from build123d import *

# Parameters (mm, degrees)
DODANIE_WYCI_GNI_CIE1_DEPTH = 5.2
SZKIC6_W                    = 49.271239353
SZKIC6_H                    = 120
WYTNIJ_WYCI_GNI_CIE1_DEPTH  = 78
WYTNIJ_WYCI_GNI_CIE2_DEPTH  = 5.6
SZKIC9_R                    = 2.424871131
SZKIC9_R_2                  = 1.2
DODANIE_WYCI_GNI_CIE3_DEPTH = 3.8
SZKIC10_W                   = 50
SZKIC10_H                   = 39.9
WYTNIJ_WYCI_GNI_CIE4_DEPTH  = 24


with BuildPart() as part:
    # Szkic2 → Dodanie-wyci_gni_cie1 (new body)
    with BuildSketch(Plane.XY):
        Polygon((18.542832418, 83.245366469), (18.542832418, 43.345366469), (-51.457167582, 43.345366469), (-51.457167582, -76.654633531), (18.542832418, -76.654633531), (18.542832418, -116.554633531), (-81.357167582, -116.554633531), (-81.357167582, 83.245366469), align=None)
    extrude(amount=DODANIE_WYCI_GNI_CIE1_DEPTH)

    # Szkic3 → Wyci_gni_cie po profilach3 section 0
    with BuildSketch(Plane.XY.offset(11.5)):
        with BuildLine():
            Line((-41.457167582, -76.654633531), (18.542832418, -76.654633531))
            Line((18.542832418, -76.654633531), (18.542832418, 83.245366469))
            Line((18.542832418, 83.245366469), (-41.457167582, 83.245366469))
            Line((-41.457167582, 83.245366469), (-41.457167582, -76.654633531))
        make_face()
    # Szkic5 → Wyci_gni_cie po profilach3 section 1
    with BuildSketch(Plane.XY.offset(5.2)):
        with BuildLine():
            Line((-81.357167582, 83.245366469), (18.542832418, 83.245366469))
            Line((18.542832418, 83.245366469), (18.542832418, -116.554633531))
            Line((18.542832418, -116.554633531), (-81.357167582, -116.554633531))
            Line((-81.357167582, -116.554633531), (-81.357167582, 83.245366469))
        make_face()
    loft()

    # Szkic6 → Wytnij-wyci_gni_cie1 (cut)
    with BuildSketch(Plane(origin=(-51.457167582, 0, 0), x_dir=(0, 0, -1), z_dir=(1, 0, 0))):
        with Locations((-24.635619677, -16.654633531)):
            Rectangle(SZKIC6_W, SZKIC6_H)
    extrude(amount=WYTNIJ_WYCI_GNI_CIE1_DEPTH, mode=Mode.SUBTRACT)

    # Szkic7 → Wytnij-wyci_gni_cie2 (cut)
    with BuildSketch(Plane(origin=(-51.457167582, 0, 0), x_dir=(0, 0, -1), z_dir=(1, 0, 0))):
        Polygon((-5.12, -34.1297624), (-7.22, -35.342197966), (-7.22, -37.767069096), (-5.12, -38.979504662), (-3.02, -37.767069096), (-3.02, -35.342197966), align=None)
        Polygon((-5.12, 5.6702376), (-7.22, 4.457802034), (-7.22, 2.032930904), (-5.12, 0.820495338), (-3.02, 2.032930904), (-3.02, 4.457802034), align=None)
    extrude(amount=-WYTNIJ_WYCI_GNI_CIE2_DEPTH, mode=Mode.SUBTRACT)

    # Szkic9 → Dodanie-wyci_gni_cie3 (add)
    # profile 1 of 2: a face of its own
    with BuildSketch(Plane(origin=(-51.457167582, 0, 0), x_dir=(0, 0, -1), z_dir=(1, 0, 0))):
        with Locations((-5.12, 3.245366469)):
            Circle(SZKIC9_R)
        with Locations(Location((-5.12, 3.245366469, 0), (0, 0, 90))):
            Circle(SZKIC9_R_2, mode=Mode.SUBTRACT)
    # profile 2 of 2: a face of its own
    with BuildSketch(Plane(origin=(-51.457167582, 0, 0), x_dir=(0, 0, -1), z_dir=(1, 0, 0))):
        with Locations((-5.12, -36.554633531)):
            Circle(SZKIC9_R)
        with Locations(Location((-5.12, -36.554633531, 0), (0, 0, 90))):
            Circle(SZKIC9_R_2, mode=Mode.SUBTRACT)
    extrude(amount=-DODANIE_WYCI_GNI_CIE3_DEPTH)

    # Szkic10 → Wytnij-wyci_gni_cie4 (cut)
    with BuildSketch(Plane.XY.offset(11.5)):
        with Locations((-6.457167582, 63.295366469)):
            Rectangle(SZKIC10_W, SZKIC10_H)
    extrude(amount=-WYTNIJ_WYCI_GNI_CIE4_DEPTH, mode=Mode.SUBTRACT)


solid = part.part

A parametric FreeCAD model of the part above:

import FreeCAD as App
import Part
import Sketcher
from FreeCAD import Vector
Q = App.Units.Quantity

doc = App.newDocument("Part")
body = doc.addObject("PartDesign::Body", "Body")

# Sketch on XY plane
sketch1 = body.newObject("Sketcher::SketchObject", "Sketch")
sketch1.AttachmentSupport = (doc.getObject("XY_Plane"), [""])
sketch1.MapMode = "FlatFace"
sketch1.addGeometry([
    Part.LineSegment(Vector(18.542832, 43.345366, 0), Vector(18.542832, 83.245366, 0)),  # 0
    Part.LineSegment(Vector(18.542832, 83.245366, 0), Vector(-81.357168, 83.245366, 0)),  # 1
    Part.LineSegment(Vector(-81.357168, 83.245366, 0), Vector(-81.357168, -116.554634, 0)),  # 2
    Part.LineSegment(Vector(-81.357168, -116.554634, 0), Vector(18.542832, -116.554634, 0)),  # 3
    Part.LineSegment(Vector(18.542832, -116.554634, 0), Vector(18.542832, -76.654634, 0)),  # 4
    Part.LineSegment(Vector(18.542832, -76.654634, 0), Vector(-51.457168, -76.654634, 0)),  # 5
    Part.LineSegment(Vector(-51.457168, -76.654634, 0), Vector(-51.457168, 43.345366, 0)),  # 6
    Part.LineSegment(Vector(-51.457168, 43.345366, 0), Vector(18.542832, 43.345366, 0)),  # 7
], False)
sketch1.addConstraint([
    Sketcher.Constraint("Coincident", 0, 2, 1, 1),
    Sketcher.Constraint("Coincident", 1, 2, 2, 1),
    Sketcher.Constraint("Coincident", 2, 2, 3, 1),
    Sketcher.Constraint("Coincident", 3, 2, 4, 1),
    Sketcher.Constraint("Coincident", 4, 2, 5, 1),
    Sketcher.Constraint("Coincident", 5, 2, 6, 1),
    Sketcher.Constraint("Coincident", 6, 2, 7, 1),
    Sketcher.Constraint("Coincident", 7, 2, 0, 1),
    Sketcher.Constraint("Vertical", 0),
    Sketcher.Constraint("Horizontal", 1),
    Sketcher.Constraint("Vertical", 2),
    Sketcher.Constraint("Horizontal", 3),
    Sketcher.Constraint("Vertical", 4),
    Sketcher.Constraint("Horizontal", 5),
    Sketcher.Constraint("Vertical", 6),
    Sketcher.Constraint("Horizontal", 7),
    Sketcher.Constraint("Vertical", 0, 2, 3, 2),
    Sketcher.Constraint("Equal", 0, 4),
    Sketcher.Constraint("DistanceX", 5, 2, 5, 1, 70.0),
    Sketcher.Constraint("DistanceY", 6, 1, 6, 2, 120.0),
    Sketcher.Constraint("DistanceX", 1, 2, 1, 1, 99.9),
    Sketcher.Constraint("DistanceY", 0, 1, 0, 2, 39.9),
    Sketcher.Constraint("DistanceX", -1, 1, 0, 2, 18.542832),
    Sketcher.Constraint("DistanceY", -1, 1, 0, 2, 83.245366),
])
pad1 = body.newObject("PartDesign::Pad", "Pad")
pad1.Profile = sketch1
pad1.Length = 5.2

# Sketch on XY plane
sketch2 = body.newObject("Sketcher::SketchObject", "Sketch001")
sketch2.AttachmentSupport = (doc.getObject("XY_Plane"), [""])
sketch2.MapMode = "FlatFace"
sketch2.AttachmentOffset = App.Placement(Vector(0, 0, 11.5), App.Rotation())
sketch2.addGeometry([
    Part.LineSegment(Vector(-41.457168, -76.654634, 0), Vector(18.542832, -76.654634, 0)),
    Part.LineSegment(Vector(18.542832, -76.654634, 0), Vector(18.542832, 83.245366, 0)),
    Part.LineSegment(Vector(18.542832, 83.245366, 0), Vector(-41.457168, 83.245366, 0)),
    Part.LineSegment(Vector(-41.457168, 83.245366, 0), Vector(-41.457168, -76.654634, 0)),
], False)
sketch2.addConstraint([
    Sketcher.Constraint("Coincident", 0, 2, 1, 1),
    Sketcher.Constraint("Coincident", 1, 2, 2, 1),
    Sketcher.Constraint("Coincident", 2, 2, 3, 1),
    Sketcher.Constraint("Coincident", 3, 2, 0, 1),
    Sketcher.Constraint("Horizontal", 0),
    Sketcher.Constraint("Vertical", 1),
    Sketcher.Constraint("Horizontal", 2),
    Sketcher.Constraint("Vertical", 3),
    Sketcher.Constraint("DistanceX", 0, 1, 0, 2, 60.0),
    Sketcher.Constraint("DistanceY", 1, 1, 1, 2, 159.9),
    Sketcher.Constraint("DistanceX", -1, 1, 0, 2, 18.542832),
    Sketcher.Constraint("DistanceY", 0, 2, -1, 1, 76.654634),
])

# Sketch on XY plane
sketch3 = body.newObject("Sketcher::SketchObject", "Sketch002")
sketch3.AttachmentSupport = (doc.getObject("XY_Plane"), [""])
sketch3.MapMode = "FlatFace"
sketch3.AttachmentOffset = App.Placement(Vector(0, 0, 5.2), App.Rotation())
sketch3.addGeometry([
    Part.LineSegment(Vector(18.542832, 83.245366, 0), Vector(-81.357168, 83.245366, 0)),
    Part.LineSegment(Vector(-81.357168, 83.245366, 0), Vector(-81.357168, -116.554634, 0)),
    Part.LineSegment(Vector(-81.357168, -116.554634, 0), Vector(18.542832, -116.554634, 0)),
    Part.LineSegment(Vector(18.542832, -116.554634, 0), Vector(18.542832, 83.245366, 0)),
], False)
sketch3.addConstraint([
    Sketcher.Constraint("Coincident", 0, 2, 1, 1),
    Sketcher.Constraint("Coincident", 1, 2, 2, 1),
    Sketcher.Constraint("Coincident", 2, 2, 3, 1),
    Sketcher.Constraint("Coincident", 3, 2, 0, 1),
    Sketcher.Constraint("Horizontal", 0),
    Sketcher.Constraint("Vertical", 1),
    Sketcher.Constraint("Horizontal", 2),
    Sketcher.Constraint("Vertical", 3),
    Sketcher.Constraint("DistanceX", 0, 2, 0, 1, 99.9),
    Sketcher.Constraint("DistanceY", 1, 2, 1, 1, 199.8),
    Sketcher.Constraint("DistanceX", 0, 2, -1, 1, 81.357168),
    Sketcher.Constraint("DistanceY", -1, 1, 0, 2, 83.245366),
])

additiveloft = body.newObject("PartDesign::AdditiveLoft", "AdditiveLoft")
additiveloft.Profile = sketch2
additiveloft.Sections = [sketch3]

# Sketch on YZ plane
sketch4 = body.newObject("Sketcher::SketchObject", "Sketch003")
sketch4.AttachmentSupport = (doc.getObject("YZ_Plane"), [""])
sketch4.MapMode = "FlatFace"
sketch4.AttachmentOffset = App.Placement(Vector(0, 0, -51.457168), App.Rotation())
sketch4.addGeometry([
    Part.LineSegment(Vector(43.345366, 49.271239, 0), Vector(-76.654634, 49.271239, 0)),
    Part.LineSegment(Vector(-76.654634, 49.271239, 0), Vector(-76.654634, 0, 0)),
    Part.LineSegment(Vector(-76.654634, 0, 0), Vector(43.345366, 0, 0)),
    Part.LineSegment(Vector(43.345366, 0, 0), Vector(43.345366, 49.271239, 0)),
], False)
sketch4.addConstraint([
    Sketcher.Constraint("Coincident", 0, 2, 1, 1),
    Sketcher.Constraint("Coincident", 1, 2, 2, 1),
    Sketcher.Constraint("Coincident", 2, 2, 3, 1),
    Sketcher.Constraint("Coincident", 3, 2, 0, 1),
    Sketcher.Constraint("Horizontal", 0),
    Sketcher.Constraint("Vertical", 1),
    Sketcher.Constraint("Horizontal", 2),
    Sketcher.Constraint("Vertical", 3),
    Sketcher.Constraint("PointOnObject", 1, 2, -1),
    Sketcher.Constraint("DistanceX", 0, 2, 0, 1, 120.0),
    Sketcher.Constraint("DistanceY", 1, 2, 1, 1, 49.271239),
    Sketcher.Constraint("DistanceX", 0, 2, -1, 1, 76.654634),
])
pocket1 = body.newObject("PartDesign::Pocket", "Pocket")
pocket1.Profile = sketch4
pocket1.Length = 78
pocket1.Reversed = True

# Sketch on YZ plane
sketch5 = body.newObject("Sketcher::SketchObject", "Sketch004")
sketch5.AttachmentSupport = (doc.getObject("YZ_Plane"), [""])
sketch5.MapMode = "FlatFace"
sketch5.AttachmentOffset = App.Placement(Vector(0, 0, -51.457168), App.Rotation())
sketch5.addGeometry([
    Part.LineSegment(Vector(-34.129762, 5.12, 0), Vector(-35.342198, 7.22, 0)),  # 0
    Part.LineSegment(Vector(-35.342198, 7.22, 0), Vector(-37.767069, 7.22, 0)),  # 1
    Part.LineSegment(Vector(-37.767069, 7.22, 0), Vector(-38.979505, 5.12, 0)),  # 2
    Part.LineSegment(Vector(-38.979505, 5.12, 0), Vector(-37.767069, 3.02, 0)),  # 3
    Part.LineSegment(Vector(-37.767069, 3.02, 0), Vector(-35.342198, 3.02, 0)),  # 4
    Part.LineSegment(Vector(-35.342198, 3.02, 0), Vector(-34.129762, 5.12, 0)),  # 5
    Part.LineSegment(Vector(5.670238, 5.12, 0), Vector(4.457802, 7.22, 0)),  # 6
    Part.LineSegment(Vector(4.457802, 7.22, 0), Vector(2.032931, 7.22, 0)),  # 7
    Part.LineSegment(Vector(2.032931, 7.22, 0), Vector(0.820495, 5.12, 0)),  # 8
    Part.LineSegment(Vector(0.820495, 5.12, 0), Vector(2.032931, 3.02, 0)),  # 9
    Part.LineSegment(Vector(2.032931, 3.02, 0), Vector(4.457802, 3.02, 0)),  # 10
    Part.LineSegment(Vector(4.457802, 3.02, 0), Vector(5.670238, 5.12, 0)),  # 11
], False)
sketch5.addConstraint([
    Sketcher.Constraint("Coincident", 0, 2, 1, 1),
    Sketcher.Constraint("Coincident", 1, 2, 2, 1),
    Sketcher.Constraint("Coincident", 2, 2, 3, 1),
    Sketcher.Constraint("Coincident", 3, 2, 4, 1),
    Sketcher.Constraint("Coincident", 4, 2, 5, 1),
    Sketcher.Constraint("Coincident", 5, 2, 0, 1),
    Sketcher.Constraint("Coincident", 6, 2, 7, 1),
    Sketcher.Constraint("Coincident", 7, 2, 8, 1),
    Sketcher.Constraint("Coincident", 8, 2, 9, 1),
    Sketcher.Constraint("Coincident", 9, 2, 10, 1),
    Sketcher.Constraint("Coincident", 10, 2, 11, 1),
    Sketcher.Constraint("Coincident", 11, 2, 6, 1),
    Sketcher.Constraint("Horizontal", 1),
    Sketcher.Constraint("Horizontal", 4),
    Sketcher.Constraint("Horizontal", 7),
    Sketcher.Constraint("Horizontal", 10),
    Sketcher.Constraint("Parallel", 0, 3),
    Sketcher.Constraint("Parallel", 2, 5),
    Sketcher.Constraint("Parallel", 3, 6),
    Sketcher.Constraint("Parallel", 5, 8),
    Sketcher.Constraint("Parallel", 6, 9),
    Sketcher.Constraint("Parallel", 8, 11),
    Sketcher.Constraint("Horizontal", 2, 2, 5, 2),
    Sketcher.Constraint("Horizontal", 1, 2, 6, 2),
    Sketcher.Constraint("Horizontal", 5, 2, 8, 2),
    Sketcher.Constraint("Horizontal", 4, 2, 9, 2),
    Sketcher.Constraint("Horizontal", 8, 2, 11, 2),
    Sketcher.Constraint("Vertical", 1, 2, 3, 2),
    Sketcher.Constraint("Vertical", 0, 2, 4, 2),
    Sketcher.Constraint("Equal", 4, 7),
    Sketcher.Constraint("Angle", 0, Q("120 deg")),
    Sketcher.Constraint("DistanceY", 2, 2, 1, 2, 2.1),
    Sketcher.Constraint("DistanceX", 0, 2, 6, 2, 39.8),
    Sketcher.Constraint("DistanceY", -1, 1, 0, 2, 7.22),
    Sketcher.Constraint("DistanceX", 1, 2, 1, 1, 2.424871),
    Sketcher.Constraint("DistanceX", 1, 2, -1, 1, 37.767069),
])
pocket2 = body.newObject("PartDesign::Pocket", "Pocket001")
pocket2.Profile = sketch5
pocket2.Length = 5.6

# Sketch on YZ plane
sketch6 = body.newObject("Sketcher::SketchObject", "Sketch005")
sketch6.AttachmentSupport = (doc.getObject("YZ_Plane"), [""])
sketch6.MapMode = "FlatFace"
sketch6.AttachmentOffset = App.Placement(Vector(0, 0, -51.457168), App.Rotation())
sketch6.addGeometry([
    Part.Circle(Vector(3.245366, 5.12, 0), Vector(0, 0, 1), 2.424871),
    Part.Circle(Vector(3.245366, 5.12, 0), Vector(0, 0, 1), 1.2),
    Part.Circle(Vector(-36.554634, 5.12, 0), Vector(0, 0, 1), 2.424871),
    Part.Circle(Vector(-36.554634, 5.12, 0), Vector(0, 0, 1), 1.2),
], False)
sketch6.addConstraint([
    Sketcher.Constraint("Coincident", 1, 3, 0, 3),
    Sketcher.Constraint("Coincident", 3, 3, 2, 3),
    Sketcher.Constraint("Equal", 0, 2),
    Sketcher.Constraint("Equal", 1, 3),
    Sketcher.Constraint("Horizontal", 1, 3, 2, 3),
    Sketcher.Constraint("Diameter", 1, 2.4),
    Sketcher.Constraint("DistanceX", 2, 3, 0, 3, 39.8),
    Sketcher.Constraint("DistanceY", -1, 1, 0, 3, 5.12),
    Sketcher.Constraint("Diameter", 0, 4.849742),
    Sketcher.Constraint("DistanceX", -1, 1, 0, 3, 3.245366),
])
pad2 = body.newObject("PartDesign::Pad", "Pad001")
pad2.Profile = sketch6
pad2.Length = 3.8
pad2.Reversed = True

# Sketch on XY plane
sketch7 = body.newObject("Sketcher::SketchObject", "Sketch006")
sketch7.AttachmentSupport = (doc.getObject("XY_Plane"), [""])
sketch7.MapMode = "FlatFace"
sketch7.AttachmentOffset = App.Placement(Vector(0, 0, 11.5), App.Rotation())
sketch7.addGeometry([
    Part.LineSegment(Vector(-31.457168, 83.245366, 0), Vector(-31.457168, 43.345366, 0)),
    Part.LineSegment(Vector(-31.457168, 43.345366, 0), Vector(18.542832, 43.345366, 0)),
    Part.LineSegment(Vector(18.542832, 43.345366, 0), Vector(18.542832, 83.245366, 0)),
    Part.LineSegment(Vector(18.542832, 83.245366, 0), Vector(-31.457168, 83.245366, 0)),
], False)
sketch7.addConstraint([
    Sketcher.Constraint("Coincident", 0, 2, 1, 1),
    Sketcher.Constraint("Coincident", 1, 2, 2, 1),
    Sketcher.Constraint("Coincident", 2, 2, 3, 1),
    Sketcher.Constraint("Coincident", 3, 2, 0, 1),
    Sketcher.Constraint("Vertical", 0),
    Sketcher.Constraint("Horizontal", 1),
    Sketcher.Constraint("Vertical", 2),
    Sketcher.Constraint("Horizontal", 3),
    Sketcher.Constraint("DistanceX", 1, 1, 1, 2, 50.0),
    Sketcher.Constraint("DistanceY", 0, 2, 0, 1, 39.9),
    Sketcher.Constraint("DistanceX", 0, 2, -1, 1, 31.457168),
    Sketcher.Constraint("DistanceY", -1, 1, 0, 2, 43.345366),
])
pocket3 = body.newObject("PartDesign::Pocket", "Pocket002")
pocket3.Profile = sketch7
pocket3.Length = 24

doc.recompute()
